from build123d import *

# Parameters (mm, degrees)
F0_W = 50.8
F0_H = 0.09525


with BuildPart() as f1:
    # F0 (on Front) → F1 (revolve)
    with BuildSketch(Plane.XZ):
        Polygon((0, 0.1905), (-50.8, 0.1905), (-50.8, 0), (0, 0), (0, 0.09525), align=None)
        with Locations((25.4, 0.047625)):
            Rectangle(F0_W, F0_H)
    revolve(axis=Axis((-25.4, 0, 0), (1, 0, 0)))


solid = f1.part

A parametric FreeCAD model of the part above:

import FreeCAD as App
import Part
import Sketcher
from FreeCAD import Vector
Q = App.Units.Quantity


def add_polygon(sketch, points):
    """Adds a closed chain of lines whose ends are joined by coincident constraints."""
    first, n = sketch.GeometryCount, len(points)
    for a, b in zip(points, points[1:] + points[:1]):
        sketch.addGeometry(Part.LineSegment(App.Vector(*a, 0), App.Vector(*b, 0)), False)
    for i in range(n):
        sketch.addConstraint(Sketcher.Constraint("Coincident", first + i, 2, first + (i + 1) % n, 1))

doc = App.newDocument("Part")
body = doc.addObject("PartDesign::Body", "Body")

sketch1 = body.newObject("Sketcher::SketchObject", "Sketch")
sketch1.AttachmentSupport = (doc.getObject("XZ_Plane"), [""])
sketch1.MapMode = "FlatFace"
add_polygon(sketch1, [(0, 0.1905), (-50.8, 0.1905), (-50.8, 0), (50.8, 0), (50.8, 0.09525), (0, 0.09525)])
sketch1.addConstraint(Sketcher.Constraint("Horizontal", 0))
sketch1.addConstraint(Sketcher.Constraint("Vertical", 1))
sketch1.addConstraint(Sketcher.Constraint("Horizontal", 2))
sketch1.addConstraint(Sketcher.Constraint("Vertical", 3))
sketch1.addConstraint(Sketcher.Constraint("Horizontal", 4))
sketch1.addConstraint(Sketcher.Constraint("Vertical", 5))
sketch1.addConstraint(Sketcher.Constraint("Symmetric", 1, 2, 2, 2, -1, 1))
sketch1.addConstraint(Sketcher.Constraint("PointOnObject", 4, 2, -2))
sketch1.addConstraint(Sketcher.Constraint("Equal", 3, 5))
sketch1.addConstraint(Sketcher.Constraint("DistanceX", 0, 2, 0, 1, Q("2 in")))
sketch1.addConstraint(Sketcher.Constraint("DistanceY", 1, 2, 1, 1, Q("0.0075 in")))
revolution = body.newObject("PartDesign::Revolution", "Revolution")
revolution.Profile = sketch1
revolution.ReferenceAxis = (sketch1, ["H_Axis"])
revolution.Angle = 360

doc.recompute()
